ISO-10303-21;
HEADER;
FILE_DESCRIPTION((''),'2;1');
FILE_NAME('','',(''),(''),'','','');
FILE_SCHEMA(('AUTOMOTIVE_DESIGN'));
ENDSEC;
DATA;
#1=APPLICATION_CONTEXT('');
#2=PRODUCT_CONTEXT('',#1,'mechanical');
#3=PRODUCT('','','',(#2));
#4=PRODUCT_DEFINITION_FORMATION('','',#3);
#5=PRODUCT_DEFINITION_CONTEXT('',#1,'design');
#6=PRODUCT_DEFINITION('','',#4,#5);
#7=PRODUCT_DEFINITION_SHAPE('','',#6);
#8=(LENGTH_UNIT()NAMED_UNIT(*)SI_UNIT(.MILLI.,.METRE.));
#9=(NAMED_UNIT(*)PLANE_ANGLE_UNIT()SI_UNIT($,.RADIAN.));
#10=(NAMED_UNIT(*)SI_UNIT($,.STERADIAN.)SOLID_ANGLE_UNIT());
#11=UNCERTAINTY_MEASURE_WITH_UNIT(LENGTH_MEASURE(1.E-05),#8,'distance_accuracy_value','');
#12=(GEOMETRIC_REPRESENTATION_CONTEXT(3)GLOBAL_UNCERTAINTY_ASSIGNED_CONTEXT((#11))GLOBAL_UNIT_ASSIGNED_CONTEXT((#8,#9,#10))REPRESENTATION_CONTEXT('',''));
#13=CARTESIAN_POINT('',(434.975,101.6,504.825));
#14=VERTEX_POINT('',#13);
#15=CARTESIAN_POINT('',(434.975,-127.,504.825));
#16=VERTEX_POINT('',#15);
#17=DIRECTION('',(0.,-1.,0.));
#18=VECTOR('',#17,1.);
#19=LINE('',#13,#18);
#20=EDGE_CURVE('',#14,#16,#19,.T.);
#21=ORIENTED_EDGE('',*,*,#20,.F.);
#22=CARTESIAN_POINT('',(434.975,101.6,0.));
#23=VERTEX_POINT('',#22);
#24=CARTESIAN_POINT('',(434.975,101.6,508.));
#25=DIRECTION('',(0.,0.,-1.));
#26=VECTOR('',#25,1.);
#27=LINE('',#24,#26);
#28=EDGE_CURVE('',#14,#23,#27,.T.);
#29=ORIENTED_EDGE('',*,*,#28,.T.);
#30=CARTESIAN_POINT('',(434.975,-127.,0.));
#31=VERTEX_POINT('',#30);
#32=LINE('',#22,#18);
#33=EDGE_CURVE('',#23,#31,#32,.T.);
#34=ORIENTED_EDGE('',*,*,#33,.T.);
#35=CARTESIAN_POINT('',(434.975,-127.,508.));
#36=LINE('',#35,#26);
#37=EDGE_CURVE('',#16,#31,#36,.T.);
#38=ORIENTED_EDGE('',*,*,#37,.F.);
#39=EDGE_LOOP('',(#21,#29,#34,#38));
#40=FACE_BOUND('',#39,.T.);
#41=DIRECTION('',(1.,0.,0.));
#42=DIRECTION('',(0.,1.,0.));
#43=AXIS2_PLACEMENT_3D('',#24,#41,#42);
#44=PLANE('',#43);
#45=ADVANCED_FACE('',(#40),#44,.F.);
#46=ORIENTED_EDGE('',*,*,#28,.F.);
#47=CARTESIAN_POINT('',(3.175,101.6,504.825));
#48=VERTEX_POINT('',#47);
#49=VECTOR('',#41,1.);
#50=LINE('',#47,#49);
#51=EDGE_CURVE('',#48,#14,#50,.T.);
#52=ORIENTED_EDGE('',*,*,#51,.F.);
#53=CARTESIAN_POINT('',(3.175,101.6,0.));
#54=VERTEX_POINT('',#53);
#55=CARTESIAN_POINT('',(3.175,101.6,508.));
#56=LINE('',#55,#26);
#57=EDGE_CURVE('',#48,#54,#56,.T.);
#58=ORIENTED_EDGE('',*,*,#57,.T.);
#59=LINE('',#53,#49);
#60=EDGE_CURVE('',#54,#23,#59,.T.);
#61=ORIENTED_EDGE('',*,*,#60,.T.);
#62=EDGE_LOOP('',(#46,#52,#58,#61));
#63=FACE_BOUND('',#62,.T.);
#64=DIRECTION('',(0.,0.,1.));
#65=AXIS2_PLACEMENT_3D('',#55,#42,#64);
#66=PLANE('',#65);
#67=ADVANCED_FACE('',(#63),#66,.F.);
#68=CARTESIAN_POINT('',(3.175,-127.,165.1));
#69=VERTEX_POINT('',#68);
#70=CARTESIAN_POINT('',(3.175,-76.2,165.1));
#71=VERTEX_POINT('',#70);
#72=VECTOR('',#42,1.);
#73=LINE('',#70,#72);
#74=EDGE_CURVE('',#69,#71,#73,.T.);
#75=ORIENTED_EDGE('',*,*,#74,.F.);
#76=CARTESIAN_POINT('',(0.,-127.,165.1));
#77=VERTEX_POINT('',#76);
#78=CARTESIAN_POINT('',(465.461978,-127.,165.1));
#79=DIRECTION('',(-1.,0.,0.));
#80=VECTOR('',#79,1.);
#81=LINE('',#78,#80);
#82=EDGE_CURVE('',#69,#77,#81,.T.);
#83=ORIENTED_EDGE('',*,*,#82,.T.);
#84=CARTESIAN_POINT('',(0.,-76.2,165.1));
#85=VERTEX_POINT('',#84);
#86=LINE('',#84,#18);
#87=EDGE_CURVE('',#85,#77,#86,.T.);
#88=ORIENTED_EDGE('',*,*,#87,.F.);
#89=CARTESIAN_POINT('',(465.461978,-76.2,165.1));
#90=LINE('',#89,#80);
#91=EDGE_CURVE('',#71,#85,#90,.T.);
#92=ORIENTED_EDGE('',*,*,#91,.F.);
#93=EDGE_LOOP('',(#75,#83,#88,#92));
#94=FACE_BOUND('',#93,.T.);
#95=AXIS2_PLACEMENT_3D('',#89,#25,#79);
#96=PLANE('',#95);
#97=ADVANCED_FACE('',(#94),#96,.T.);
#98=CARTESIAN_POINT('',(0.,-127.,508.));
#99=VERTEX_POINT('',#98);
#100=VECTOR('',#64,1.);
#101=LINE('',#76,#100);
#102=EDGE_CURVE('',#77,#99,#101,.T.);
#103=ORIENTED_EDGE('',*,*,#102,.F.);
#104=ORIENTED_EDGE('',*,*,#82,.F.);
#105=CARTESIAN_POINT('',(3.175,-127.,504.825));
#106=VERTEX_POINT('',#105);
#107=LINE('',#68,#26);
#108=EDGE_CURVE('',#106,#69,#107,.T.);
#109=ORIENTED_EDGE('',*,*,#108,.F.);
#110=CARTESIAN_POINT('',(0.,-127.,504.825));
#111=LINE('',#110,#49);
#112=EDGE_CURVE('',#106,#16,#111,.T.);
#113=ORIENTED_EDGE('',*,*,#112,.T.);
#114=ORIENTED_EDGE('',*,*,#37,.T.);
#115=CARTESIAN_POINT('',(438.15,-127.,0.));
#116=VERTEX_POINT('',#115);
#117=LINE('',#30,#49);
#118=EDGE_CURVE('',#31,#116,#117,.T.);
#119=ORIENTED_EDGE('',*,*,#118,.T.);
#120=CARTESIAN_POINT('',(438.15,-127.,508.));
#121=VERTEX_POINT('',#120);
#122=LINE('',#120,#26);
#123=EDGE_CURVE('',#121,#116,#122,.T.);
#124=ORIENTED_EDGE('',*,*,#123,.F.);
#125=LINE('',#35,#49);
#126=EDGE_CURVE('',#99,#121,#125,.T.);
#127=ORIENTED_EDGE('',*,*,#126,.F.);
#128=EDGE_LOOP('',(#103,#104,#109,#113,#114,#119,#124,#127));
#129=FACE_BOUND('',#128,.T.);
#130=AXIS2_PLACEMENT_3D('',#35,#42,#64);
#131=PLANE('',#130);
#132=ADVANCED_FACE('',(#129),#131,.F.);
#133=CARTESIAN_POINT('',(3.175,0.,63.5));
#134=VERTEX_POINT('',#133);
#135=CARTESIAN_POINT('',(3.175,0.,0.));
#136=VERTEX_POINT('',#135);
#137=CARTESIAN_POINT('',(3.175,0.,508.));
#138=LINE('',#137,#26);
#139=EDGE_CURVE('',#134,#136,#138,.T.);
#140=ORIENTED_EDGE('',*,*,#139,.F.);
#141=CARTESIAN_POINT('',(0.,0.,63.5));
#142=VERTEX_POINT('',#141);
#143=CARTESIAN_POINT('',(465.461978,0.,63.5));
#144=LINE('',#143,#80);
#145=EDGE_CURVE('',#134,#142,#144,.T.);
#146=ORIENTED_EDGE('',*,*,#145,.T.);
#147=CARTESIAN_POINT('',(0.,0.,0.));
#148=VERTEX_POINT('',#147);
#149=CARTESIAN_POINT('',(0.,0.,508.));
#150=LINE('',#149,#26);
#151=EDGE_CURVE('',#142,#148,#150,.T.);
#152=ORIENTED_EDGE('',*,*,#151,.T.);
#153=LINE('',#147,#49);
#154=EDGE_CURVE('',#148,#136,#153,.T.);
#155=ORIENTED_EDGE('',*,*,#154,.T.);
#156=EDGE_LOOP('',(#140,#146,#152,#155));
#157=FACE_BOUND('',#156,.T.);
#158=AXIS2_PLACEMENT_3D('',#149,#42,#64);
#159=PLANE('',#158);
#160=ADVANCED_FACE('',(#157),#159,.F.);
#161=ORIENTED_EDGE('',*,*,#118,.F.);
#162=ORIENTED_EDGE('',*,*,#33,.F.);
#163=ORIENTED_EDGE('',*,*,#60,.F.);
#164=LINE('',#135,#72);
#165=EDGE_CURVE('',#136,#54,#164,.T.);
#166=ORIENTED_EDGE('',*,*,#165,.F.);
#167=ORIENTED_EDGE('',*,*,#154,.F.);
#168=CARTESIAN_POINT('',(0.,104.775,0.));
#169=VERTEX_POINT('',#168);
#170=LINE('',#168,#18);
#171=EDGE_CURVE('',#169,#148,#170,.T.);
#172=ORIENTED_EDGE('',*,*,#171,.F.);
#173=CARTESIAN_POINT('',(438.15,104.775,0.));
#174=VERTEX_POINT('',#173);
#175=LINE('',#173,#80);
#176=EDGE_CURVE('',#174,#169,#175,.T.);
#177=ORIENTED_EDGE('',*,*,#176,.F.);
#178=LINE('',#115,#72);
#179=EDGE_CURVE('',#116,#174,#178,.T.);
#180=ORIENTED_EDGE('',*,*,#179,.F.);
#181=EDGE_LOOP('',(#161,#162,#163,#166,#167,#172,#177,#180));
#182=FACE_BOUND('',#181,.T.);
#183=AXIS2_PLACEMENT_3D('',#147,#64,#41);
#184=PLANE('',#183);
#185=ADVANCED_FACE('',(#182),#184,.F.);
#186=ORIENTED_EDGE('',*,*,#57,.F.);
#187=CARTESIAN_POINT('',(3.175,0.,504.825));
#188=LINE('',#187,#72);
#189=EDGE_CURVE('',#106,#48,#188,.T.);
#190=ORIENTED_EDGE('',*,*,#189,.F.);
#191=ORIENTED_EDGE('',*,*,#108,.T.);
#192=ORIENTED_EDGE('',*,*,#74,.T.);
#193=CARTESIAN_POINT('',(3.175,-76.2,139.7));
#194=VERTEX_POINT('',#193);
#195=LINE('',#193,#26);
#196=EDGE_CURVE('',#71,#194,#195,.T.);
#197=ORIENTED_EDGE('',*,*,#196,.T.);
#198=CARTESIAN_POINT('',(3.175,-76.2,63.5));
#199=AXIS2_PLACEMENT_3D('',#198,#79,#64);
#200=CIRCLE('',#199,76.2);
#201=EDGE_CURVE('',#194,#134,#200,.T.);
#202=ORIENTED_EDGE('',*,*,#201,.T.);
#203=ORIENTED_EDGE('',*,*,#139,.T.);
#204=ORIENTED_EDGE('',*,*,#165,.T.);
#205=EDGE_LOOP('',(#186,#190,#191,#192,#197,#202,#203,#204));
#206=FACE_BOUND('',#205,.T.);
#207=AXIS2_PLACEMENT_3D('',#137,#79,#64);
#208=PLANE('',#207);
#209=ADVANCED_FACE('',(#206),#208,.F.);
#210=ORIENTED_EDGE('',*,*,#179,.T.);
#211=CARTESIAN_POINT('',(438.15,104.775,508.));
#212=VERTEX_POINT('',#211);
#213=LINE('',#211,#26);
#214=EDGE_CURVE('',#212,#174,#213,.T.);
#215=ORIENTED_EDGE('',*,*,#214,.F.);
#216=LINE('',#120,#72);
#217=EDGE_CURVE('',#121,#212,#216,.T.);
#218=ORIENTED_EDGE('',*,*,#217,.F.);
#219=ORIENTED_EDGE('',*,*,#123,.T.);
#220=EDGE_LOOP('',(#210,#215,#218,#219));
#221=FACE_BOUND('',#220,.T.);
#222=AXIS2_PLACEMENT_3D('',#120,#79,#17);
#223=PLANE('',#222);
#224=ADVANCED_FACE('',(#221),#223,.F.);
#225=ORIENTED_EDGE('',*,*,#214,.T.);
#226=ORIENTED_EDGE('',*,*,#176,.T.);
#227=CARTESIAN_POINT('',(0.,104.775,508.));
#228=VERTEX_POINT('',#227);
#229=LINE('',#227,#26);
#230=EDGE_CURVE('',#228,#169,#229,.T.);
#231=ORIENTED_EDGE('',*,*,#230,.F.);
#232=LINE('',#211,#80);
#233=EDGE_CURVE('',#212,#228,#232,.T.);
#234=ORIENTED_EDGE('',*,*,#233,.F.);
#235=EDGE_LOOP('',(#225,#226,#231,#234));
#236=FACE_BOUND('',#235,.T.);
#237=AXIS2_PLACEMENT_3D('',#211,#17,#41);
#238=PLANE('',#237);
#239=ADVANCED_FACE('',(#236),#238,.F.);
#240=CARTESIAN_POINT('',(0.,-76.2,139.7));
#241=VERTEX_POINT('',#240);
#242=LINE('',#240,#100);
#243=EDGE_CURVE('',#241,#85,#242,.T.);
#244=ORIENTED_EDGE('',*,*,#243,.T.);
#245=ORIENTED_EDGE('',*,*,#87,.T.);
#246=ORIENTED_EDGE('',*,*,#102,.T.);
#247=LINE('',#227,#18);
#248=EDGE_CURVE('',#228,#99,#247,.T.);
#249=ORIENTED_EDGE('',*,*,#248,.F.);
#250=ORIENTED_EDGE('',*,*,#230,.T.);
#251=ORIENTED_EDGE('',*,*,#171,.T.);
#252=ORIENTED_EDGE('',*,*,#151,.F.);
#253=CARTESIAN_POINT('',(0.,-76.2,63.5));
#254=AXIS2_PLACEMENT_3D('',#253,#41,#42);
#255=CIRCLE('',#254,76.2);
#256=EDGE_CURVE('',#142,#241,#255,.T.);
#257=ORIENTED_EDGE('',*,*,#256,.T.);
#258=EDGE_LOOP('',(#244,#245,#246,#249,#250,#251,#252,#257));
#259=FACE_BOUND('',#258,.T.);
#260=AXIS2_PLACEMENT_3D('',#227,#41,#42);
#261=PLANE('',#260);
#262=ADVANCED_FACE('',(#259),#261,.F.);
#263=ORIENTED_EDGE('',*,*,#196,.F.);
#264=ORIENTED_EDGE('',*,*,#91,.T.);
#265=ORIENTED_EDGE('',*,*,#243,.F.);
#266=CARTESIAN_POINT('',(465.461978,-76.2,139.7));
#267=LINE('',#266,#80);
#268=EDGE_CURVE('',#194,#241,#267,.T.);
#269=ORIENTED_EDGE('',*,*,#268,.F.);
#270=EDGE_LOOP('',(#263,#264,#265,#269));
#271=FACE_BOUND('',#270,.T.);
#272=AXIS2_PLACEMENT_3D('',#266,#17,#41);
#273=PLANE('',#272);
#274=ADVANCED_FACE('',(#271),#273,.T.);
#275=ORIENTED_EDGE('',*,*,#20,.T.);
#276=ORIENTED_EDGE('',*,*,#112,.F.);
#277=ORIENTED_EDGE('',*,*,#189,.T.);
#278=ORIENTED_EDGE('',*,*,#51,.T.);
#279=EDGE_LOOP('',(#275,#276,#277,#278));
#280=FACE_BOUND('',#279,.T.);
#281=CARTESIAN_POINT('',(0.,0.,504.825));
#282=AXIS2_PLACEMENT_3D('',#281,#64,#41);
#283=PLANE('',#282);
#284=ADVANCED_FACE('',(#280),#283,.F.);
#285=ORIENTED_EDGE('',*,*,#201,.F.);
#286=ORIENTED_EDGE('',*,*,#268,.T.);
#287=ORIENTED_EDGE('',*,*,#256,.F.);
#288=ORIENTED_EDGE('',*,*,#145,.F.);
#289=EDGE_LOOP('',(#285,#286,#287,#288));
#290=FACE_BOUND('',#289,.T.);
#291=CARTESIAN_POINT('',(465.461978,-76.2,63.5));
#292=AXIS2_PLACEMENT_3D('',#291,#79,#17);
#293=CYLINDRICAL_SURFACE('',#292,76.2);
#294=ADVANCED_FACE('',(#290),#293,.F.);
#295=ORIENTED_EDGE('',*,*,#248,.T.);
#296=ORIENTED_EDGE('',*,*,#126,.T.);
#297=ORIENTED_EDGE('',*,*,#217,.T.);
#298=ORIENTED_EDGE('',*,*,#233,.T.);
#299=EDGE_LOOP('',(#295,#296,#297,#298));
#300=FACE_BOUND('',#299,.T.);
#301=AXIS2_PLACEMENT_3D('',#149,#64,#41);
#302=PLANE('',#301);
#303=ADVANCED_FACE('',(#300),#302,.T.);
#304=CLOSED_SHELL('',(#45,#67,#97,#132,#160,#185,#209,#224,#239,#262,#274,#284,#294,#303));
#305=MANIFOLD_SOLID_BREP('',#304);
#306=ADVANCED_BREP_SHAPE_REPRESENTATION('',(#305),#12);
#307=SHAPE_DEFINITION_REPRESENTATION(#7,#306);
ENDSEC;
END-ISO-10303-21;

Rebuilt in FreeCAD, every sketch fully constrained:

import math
import FreeCAD as App
import Part
import Sketcher
from FreeCAD import Vector
Q = App.Units.Quantity

doc = App.newDocument("Part")
body = doc.addObject("PartDesign::Body", "Body")

# Sketch on XY plane
sketch1 = body.newObject("Sketcher::SketchObject", "Sketch")
sketch1.AttachmentSupport = (doc.getObject("XY_Plane"), [""])
sketch1.MapMode = "FlatFace"
sketch1.addGeometry([
    Part.LineSegment(Vector(0, 0, 0), Vector(3.2, 0, 0)),  # 0
    Part.LineSegment(Vector(3.2, 0, 0), Vector(3.2, 101.6, 0)),  # 1
    Part.LineSegment(Vector(3.2, 101.6, 0), Vector(435, 101.6, 0)),  # 2
    Part.LineSegment(Vector(435, 101.6, 0), Vector(435, -127, 0)),  # 3
    Part.LineSegment(Vector(435, -127, 0), Vector(438.1, -127, 0)),  # 4
    Part.LineSegment(Vector(438.1, -127, 0), Vector(438.1, 104.8, 0)),  # 5
    Part.LineSegment(Vector(438.1, 104.8, 0), Vector(0, 104.8, 0)),  # 6
    Part.LineSegment(Vector(0, 104.8, 0), Vector(0, 0, 0)),  # 7
], False)
sketch1.addConstraint([
    Sketcher.Constraint("Coincident", 0, 2, 1, 1),
    Sketcher.Constraint("Coincident", 1, 2, 2, 1),
    Sketcher.Constraint("Coincident", 2, 2, 3, 1),
    Sketcher.Constraint("Coincident", 3, 2, 4, 1),
    Sketcher.Constraint("Coincident", 4, 2, 5, 1),
    Sketcher.Constraint("Coincident", 5, 2, 6, 1),
    Sketcher.Constraint("Coincident", 6, 2, 7, 1),
    Sketcher.Constraint("Coincident", 7, 2, 0, 1),
    Sketcher.Constraint("Horizontal", 0),
    Sketcher.Constraint("Vertical", 1),
    Sketcher.Constraint("Horizontal", 2),
    Sketcher.Constraint("Vertical", 3),
    Sketcher.Constraint("Horizontal", 4),
    Sketcher.Constraint("Vertical", 5),
    Sketcher.Constraint("Horizontal", 6),
    Sketcher.Constraint("Vertical", 7),
    Sketcher.Constraint("Coincident", 7, 2, -1, 1),
    Sketcher.Constraint("Equal", 0, 4),
    Sketcher.Constraint("DistanceX", 2, 1, 2, 2, Q("17 in")),
    Sketcher.Constraint("DistanceY", 1, 1, 1, 2, Q("4 in")),
    Sketcher.Constraint("DistanceY", 3, 2, 3, 1, Q("9 in")),
    Sketcher.Constraint("DistanceX", 6, 2, 6, 1, Q("17.25 in")),
    Sketcher.Constraint("DistanceY", 5, 1, 5, 2, Q("9.125 in")),
])
pad1 = body.newObject("PartDesign::Pad", "Pad")
pad1.Profile = sketch1
pad1.Length = Q("20 in")

# Sketch on YZ plane
sketch2 = body.newObject("Sketcher::SketchObject", "Sketch001")
sketch2.AttachmentSupport = (doc.getObject("YZ_Plane"), [""])
sketch2.MapMode = "FlatFace"
sketch2.addGeometry([
    Part.LineSegment(Vector(-76, 140, 0), Vector(-76, 165, 0)),  # 0
    Part.LineSegment(Vector(-76, 165, 0), Vector(-127, 165, 0)),  # 1
    Part.LineSegment(Vector(-127, 165, 0), Vector(-127, 508, 0)),  # 2
    Part.LineSegment(Vector(-127, 508, 0), Vector(0, 508, 0)),  # 3
    Part.LineSegment(Vector(0, 508, 0), Vector(0, 64, 0)),  # 4
    Part.ArcOfCircle(Part.Circle(Vector(-76, 63, 0), Vector(0, 0, 1), 76), math.radians(0), math.radians(90)),  # 5
], False)
sketch2.addConstraint([
    Sketcher.Constraint("Coincident", 0, 2, 1, 1),
    Sketcher.Constraint("Coincident", 1, 2, 2, 1),
    Sketcher.Constraint("Coincident", 2, 2, 3, 1),
    Sketcher.Constraint("Coincident", 3, 2, 4, 1),
    Sketcher.Constraint("Tangent", 4, 2, 5, 1),
    Sketcher.Constraint("Coincident", 5, 2, 0, 1),
    Sketcher.Constraint("Vertical", 0),
    Sketcher.Constraint("Horizontal", 1),
    Sketcher.Constraint("Vertical", 2),
    Sketcher.Constraint("Horizontal", 3),
    Sketcher.Constraint("Vertical", 4),
    Sketcher.Constraint("PointOnObject", 3, 2, -2),
    Sketcher.Constraint("Vertical", 5, 3, 0, 2),
    Sketcher.Constraint("Radius", 5, Q("3 in")),
    Sketcher.Constraint("DistanceX", 1, 2, 1, 1, Q("2 in")),
    Sketcher.Constraint("DistanceY", 0, 1, 0, 2, Q("1 in")),
    Sketcher.Constraint("DistanceY", 2, 1, 2, 2, Q("13.5 in")),
    Sketcher.Constraint("DistanceY", -1, 1, 2, 2, Q("20 in")),
])
pad2 = body.newObject("PartDesign::Pad", "Pad001")
pad2.Profile = sketch2
pad2.Length = Q("0.125 in")

# Sketch on XY plane
sketch3 = body.newObject("Sketcher::SketchObject", "Sketch002")
sketch3.AttachmentSupport = (doc.getObject("XY_Plane"), [""])
sketch3.MapMode = "FlatFace"
sketch3.AttachmentOffset = App.Placement(Vector(0, 0, 20 * 25.4), App.Rotation())
sketch3.addGeometry([
    Part.LineSegment(Vector(0, 105, 0), Vector(0, -127, 0)),
    Part.LineSegment(Vector(0, -127, 0), Vector(438, -127, 0)),
    Part.LineSegment(Vector(438, -127, 0), Vector(438, 105, 0)),
    Part.LineSegment(Vector(438, 105, 0), Vector(0, 105, 0)),
], False)
sketch3.addConstraint([
    Sketcher.Constraint("Coincident", 0, 2, 1, 1),
    Sketcher.Constraint("Coincident", 1, 2, 2, 1),
    Sketcher.Constraint("Coincident", 2, 2, 3, 1),
    Sketcher.Constraint("Coincident", 3, 2, 0, 1),
    Sketcher.Constraint("Vertical", 0),
    Sketcher.Constraint("Horizontal", 1),
    Sketcher.Constraint("Vertical", 2),
    Sketcher.Constraint("Horizontal", 3),
    Sketcher.Constraint("PointOnObject", 0, 2, -2),
    Sketcher.Constraint("DistanceY", 0, 2, -1, 1, Q("5 in")),
    Sketcher.Constraint("DistanceX", 1, 1, 1, 2, Q("17.25 in")),
    Sketcher.Constraint("DistanceY", 0, 2, 0, 1, Q("9.125 in")),
])
pad3 = body.newObject("PartDesign::Pad", "Pad002")
pad3.Profile = sketch3
pad3.Length = Q("0.125 in")
pad3.Reversed = True

doc.recompute()
